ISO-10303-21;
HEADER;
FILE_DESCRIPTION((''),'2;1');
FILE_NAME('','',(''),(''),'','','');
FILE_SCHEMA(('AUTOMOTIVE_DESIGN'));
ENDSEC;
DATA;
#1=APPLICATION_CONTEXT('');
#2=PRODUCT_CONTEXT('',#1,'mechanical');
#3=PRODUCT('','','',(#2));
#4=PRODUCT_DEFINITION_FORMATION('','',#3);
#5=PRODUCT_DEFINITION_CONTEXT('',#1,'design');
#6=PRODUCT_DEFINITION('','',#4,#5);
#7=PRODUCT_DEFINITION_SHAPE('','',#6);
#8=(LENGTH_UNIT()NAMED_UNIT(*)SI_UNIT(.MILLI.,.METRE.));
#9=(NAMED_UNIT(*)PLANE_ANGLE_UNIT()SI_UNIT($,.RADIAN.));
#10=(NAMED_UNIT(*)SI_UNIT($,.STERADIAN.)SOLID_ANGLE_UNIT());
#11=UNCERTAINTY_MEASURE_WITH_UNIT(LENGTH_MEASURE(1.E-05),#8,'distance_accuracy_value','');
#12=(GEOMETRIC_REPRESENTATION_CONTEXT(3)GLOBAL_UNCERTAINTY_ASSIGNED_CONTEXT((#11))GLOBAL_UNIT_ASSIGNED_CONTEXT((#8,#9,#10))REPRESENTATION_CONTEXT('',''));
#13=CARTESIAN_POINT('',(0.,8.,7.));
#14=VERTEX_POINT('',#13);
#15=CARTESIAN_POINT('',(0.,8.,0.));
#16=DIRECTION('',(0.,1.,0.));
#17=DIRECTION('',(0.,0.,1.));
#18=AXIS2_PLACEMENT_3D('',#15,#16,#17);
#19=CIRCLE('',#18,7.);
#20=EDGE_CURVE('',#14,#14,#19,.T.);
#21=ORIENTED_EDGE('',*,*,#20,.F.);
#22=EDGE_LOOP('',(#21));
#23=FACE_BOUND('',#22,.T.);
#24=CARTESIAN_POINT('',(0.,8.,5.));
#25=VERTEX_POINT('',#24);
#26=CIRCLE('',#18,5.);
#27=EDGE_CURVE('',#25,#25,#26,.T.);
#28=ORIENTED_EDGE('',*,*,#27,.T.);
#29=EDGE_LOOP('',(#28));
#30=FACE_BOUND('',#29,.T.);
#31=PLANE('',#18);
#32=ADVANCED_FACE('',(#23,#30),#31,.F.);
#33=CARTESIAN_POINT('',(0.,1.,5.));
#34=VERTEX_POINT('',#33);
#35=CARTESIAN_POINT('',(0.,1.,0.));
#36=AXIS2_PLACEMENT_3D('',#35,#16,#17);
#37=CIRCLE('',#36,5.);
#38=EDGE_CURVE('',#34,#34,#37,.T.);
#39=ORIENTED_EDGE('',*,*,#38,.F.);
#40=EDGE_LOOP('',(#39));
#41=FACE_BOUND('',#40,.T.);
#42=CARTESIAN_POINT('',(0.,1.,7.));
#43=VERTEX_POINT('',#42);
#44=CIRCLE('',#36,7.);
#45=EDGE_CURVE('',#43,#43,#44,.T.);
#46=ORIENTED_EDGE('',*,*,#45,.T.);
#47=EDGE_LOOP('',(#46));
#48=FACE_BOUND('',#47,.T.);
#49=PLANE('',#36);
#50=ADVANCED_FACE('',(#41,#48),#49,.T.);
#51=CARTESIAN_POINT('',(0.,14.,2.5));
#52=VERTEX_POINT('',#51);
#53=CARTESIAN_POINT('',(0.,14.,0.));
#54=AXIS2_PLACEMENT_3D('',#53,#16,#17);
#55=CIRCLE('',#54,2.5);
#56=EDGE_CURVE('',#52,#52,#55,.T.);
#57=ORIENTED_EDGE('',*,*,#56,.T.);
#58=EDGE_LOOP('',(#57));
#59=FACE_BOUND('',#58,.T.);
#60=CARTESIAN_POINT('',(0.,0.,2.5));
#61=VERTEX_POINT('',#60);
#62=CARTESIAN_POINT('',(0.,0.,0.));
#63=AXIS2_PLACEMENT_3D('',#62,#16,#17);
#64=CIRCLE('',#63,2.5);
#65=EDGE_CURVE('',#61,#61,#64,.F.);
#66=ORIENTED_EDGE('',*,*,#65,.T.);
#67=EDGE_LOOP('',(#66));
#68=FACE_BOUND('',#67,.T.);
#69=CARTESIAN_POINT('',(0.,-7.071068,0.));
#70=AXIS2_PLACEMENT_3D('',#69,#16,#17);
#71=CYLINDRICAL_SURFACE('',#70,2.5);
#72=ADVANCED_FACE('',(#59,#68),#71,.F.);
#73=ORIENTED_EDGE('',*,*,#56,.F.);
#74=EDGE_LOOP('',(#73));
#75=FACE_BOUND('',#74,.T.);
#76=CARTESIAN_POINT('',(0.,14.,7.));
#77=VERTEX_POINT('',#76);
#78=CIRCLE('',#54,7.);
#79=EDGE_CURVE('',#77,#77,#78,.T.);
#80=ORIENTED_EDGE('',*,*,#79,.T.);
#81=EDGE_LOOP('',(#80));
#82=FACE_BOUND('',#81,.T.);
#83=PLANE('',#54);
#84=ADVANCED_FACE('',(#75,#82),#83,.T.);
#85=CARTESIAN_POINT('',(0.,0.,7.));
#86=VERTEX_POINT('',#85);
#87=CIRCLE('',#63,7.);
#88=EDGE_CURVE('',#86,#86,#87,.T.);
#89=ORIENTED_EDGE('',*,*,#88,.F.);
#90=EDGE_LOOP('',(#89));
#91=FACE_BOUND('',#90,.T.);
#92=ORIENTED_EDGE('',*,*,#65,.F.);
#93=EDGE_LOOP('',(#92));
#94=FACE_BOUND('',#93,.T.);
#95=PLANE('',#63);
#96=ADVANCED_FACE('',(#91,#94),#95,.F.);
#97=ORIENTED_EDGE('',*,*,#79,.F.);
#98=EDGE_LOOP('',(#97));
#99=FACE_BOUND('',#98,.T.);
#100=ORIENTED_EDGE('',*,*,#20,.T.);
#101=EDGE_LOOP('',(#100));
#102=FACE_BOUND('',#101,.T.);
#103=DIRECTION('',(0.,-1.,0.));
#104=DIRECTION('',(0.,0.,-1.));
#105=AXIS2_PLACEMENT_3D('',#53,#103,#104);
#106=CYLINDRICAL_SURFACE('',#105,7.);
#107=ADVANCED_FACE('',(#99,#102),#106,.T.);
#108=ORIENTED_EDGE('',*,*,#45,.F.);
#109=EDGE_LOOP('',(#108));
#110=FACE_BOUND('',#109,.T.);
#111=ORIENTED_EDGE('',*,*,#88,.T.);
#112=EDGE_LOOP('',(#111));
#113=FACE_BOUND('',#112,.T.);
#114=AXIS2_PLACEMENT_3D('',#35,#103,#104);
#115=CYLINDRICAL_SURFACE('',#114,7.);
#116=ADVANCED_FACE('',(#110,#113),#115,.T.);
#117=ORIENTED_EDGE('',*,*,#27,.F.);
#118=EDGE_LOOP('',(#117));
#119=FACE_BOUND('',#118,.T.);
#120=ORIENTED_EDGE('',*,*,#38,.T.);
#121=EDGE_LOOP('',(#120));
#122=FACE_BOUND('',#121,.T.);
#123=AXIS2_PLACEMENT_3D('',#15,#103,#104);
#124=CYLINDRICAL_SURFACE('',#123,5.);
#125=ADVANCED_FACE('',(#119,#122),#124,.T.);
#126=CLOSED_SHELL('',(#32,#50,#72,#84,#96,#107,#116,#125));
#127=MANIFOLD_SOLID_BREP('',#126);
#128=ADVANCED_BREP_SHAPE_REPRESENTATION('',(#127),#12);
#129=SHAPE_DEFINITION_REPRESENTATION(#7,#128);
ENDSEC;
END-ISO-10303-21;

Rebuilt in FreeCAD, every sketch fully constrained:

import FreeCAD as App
import Part
import Sketcher

doc = App.newDocument("Part")
body = doc.addObject("PartDesign::Body", "Body")

sketch1 = doc.addObject("Sketcher::SketchObject", "Sketch")
body.addObject(sketch1)
sketch1.AttachmentSupport = (doc.XZ_Plane, [""])
sketch1.MapMode = "FlatFace"
sketch1.addGeometry(Part.Circle(App.Vector(0, 0, 0), App.Vector(0, 0, 1), 7), False)
sketch1.addConstraint(Sketcher.Constraint("Coincident", 0, 3, -1, 1))
sketch1.addConstraint(Sketcher.Constraint("Diameter", 0, 14.0))
pad1 = doc.addObject("PartDesign::Pad", "Pad")
body.addObject(pad1)
pad1.Profile = sketch1
pad1.Length = 1
pad1.Reversed = True

sketch2 = doc.addObject("Sketcher::SketchObject", "Sketch001")
body.addObject(sketch2)
sketch2.AttachmentSupport = (doc.XZ_Plane, [""])
sketch2.MapMode = "FlatFace"
sketch2.AttachmentOffset = App.Placement(App.Vector(0, 0, -1), App.Rotation())
sketch2.addGeometry(Part.Circle(App.Vector(0, 0, 0), App.Vector(0, 0, 1), 5), False)
sketch2.addConstraint(Sketcher.Constraint("Coincident", 0, 3, -1, 1))
sketch2.addConstraint(Sketcher.Constraint("Diameter", 0, 10.0))
pad2 = doc.addObject("PartDesign::Pad", "Pad001")
body.addObject(pad2)
pad2.Profile = sketch2
pad2.Length = 7
pad2.Reversed = True

sketch3 = doc.addObject("Sketcher::SketchObject", "Sketch002")
body.addObject(sketch3)
sketch3.AttachmentSupport = (doc.XZ_Plane, [""])
sketch3.MapMode = "FlatFace"
sketch3.AttachmentOffset = App.Placement(App.Vector(0, 0, -8), App.Rotation())
sketch3.addGeometry(Part.Circle(App.Vector(0, 0, 0), App.Vector(0, 0, 1), 7), False)
sketch3.addConstraint(Sketcher.Constraint("Coincident", 0, 3, -1, 1))
sketch3.addConstraint(Sketcher.Constraint("Diameter", 0, 14.0))
pad3 = doc.addObject("PartDesign::Pad", "Pad002")
body.addObject(pad3)
pad3.Profile = sketch3
pad3.Length = 6
pad3.Reversed = True

sketch4 = doc.addObject("Sketcher::SketchObject", "Sketch003")
body.addObject(sketch4)
sketch4.AttachmentSupport = (doc.XZ_Plane, [""])
sketch4.MapMode = "FlatFace"
sketch4.AttachmentOffset = App.Placement(App.Vector(0, 0, -14), App.Rotation())
sketch4.addGeometry(Part.Circle(App.Vector(0, 0, 0), App.Vector(0, 0, 1), 2.5), False)
sketch4.addConstraint(Sketcher.Constraint("Coincident", 0, 3, -1, 1))
sketch4.addConstraint(Sketcher.Constraint("Diameter", 0, 5.0))
pocket1 = doc.addObject("PartDesign::Pocket", "Pocket")
body.addObject(pocket1)
pocket1.Profile = sketch4
pocket1.Length = 14
pocket1.Reversed = True

doc.recompute()
